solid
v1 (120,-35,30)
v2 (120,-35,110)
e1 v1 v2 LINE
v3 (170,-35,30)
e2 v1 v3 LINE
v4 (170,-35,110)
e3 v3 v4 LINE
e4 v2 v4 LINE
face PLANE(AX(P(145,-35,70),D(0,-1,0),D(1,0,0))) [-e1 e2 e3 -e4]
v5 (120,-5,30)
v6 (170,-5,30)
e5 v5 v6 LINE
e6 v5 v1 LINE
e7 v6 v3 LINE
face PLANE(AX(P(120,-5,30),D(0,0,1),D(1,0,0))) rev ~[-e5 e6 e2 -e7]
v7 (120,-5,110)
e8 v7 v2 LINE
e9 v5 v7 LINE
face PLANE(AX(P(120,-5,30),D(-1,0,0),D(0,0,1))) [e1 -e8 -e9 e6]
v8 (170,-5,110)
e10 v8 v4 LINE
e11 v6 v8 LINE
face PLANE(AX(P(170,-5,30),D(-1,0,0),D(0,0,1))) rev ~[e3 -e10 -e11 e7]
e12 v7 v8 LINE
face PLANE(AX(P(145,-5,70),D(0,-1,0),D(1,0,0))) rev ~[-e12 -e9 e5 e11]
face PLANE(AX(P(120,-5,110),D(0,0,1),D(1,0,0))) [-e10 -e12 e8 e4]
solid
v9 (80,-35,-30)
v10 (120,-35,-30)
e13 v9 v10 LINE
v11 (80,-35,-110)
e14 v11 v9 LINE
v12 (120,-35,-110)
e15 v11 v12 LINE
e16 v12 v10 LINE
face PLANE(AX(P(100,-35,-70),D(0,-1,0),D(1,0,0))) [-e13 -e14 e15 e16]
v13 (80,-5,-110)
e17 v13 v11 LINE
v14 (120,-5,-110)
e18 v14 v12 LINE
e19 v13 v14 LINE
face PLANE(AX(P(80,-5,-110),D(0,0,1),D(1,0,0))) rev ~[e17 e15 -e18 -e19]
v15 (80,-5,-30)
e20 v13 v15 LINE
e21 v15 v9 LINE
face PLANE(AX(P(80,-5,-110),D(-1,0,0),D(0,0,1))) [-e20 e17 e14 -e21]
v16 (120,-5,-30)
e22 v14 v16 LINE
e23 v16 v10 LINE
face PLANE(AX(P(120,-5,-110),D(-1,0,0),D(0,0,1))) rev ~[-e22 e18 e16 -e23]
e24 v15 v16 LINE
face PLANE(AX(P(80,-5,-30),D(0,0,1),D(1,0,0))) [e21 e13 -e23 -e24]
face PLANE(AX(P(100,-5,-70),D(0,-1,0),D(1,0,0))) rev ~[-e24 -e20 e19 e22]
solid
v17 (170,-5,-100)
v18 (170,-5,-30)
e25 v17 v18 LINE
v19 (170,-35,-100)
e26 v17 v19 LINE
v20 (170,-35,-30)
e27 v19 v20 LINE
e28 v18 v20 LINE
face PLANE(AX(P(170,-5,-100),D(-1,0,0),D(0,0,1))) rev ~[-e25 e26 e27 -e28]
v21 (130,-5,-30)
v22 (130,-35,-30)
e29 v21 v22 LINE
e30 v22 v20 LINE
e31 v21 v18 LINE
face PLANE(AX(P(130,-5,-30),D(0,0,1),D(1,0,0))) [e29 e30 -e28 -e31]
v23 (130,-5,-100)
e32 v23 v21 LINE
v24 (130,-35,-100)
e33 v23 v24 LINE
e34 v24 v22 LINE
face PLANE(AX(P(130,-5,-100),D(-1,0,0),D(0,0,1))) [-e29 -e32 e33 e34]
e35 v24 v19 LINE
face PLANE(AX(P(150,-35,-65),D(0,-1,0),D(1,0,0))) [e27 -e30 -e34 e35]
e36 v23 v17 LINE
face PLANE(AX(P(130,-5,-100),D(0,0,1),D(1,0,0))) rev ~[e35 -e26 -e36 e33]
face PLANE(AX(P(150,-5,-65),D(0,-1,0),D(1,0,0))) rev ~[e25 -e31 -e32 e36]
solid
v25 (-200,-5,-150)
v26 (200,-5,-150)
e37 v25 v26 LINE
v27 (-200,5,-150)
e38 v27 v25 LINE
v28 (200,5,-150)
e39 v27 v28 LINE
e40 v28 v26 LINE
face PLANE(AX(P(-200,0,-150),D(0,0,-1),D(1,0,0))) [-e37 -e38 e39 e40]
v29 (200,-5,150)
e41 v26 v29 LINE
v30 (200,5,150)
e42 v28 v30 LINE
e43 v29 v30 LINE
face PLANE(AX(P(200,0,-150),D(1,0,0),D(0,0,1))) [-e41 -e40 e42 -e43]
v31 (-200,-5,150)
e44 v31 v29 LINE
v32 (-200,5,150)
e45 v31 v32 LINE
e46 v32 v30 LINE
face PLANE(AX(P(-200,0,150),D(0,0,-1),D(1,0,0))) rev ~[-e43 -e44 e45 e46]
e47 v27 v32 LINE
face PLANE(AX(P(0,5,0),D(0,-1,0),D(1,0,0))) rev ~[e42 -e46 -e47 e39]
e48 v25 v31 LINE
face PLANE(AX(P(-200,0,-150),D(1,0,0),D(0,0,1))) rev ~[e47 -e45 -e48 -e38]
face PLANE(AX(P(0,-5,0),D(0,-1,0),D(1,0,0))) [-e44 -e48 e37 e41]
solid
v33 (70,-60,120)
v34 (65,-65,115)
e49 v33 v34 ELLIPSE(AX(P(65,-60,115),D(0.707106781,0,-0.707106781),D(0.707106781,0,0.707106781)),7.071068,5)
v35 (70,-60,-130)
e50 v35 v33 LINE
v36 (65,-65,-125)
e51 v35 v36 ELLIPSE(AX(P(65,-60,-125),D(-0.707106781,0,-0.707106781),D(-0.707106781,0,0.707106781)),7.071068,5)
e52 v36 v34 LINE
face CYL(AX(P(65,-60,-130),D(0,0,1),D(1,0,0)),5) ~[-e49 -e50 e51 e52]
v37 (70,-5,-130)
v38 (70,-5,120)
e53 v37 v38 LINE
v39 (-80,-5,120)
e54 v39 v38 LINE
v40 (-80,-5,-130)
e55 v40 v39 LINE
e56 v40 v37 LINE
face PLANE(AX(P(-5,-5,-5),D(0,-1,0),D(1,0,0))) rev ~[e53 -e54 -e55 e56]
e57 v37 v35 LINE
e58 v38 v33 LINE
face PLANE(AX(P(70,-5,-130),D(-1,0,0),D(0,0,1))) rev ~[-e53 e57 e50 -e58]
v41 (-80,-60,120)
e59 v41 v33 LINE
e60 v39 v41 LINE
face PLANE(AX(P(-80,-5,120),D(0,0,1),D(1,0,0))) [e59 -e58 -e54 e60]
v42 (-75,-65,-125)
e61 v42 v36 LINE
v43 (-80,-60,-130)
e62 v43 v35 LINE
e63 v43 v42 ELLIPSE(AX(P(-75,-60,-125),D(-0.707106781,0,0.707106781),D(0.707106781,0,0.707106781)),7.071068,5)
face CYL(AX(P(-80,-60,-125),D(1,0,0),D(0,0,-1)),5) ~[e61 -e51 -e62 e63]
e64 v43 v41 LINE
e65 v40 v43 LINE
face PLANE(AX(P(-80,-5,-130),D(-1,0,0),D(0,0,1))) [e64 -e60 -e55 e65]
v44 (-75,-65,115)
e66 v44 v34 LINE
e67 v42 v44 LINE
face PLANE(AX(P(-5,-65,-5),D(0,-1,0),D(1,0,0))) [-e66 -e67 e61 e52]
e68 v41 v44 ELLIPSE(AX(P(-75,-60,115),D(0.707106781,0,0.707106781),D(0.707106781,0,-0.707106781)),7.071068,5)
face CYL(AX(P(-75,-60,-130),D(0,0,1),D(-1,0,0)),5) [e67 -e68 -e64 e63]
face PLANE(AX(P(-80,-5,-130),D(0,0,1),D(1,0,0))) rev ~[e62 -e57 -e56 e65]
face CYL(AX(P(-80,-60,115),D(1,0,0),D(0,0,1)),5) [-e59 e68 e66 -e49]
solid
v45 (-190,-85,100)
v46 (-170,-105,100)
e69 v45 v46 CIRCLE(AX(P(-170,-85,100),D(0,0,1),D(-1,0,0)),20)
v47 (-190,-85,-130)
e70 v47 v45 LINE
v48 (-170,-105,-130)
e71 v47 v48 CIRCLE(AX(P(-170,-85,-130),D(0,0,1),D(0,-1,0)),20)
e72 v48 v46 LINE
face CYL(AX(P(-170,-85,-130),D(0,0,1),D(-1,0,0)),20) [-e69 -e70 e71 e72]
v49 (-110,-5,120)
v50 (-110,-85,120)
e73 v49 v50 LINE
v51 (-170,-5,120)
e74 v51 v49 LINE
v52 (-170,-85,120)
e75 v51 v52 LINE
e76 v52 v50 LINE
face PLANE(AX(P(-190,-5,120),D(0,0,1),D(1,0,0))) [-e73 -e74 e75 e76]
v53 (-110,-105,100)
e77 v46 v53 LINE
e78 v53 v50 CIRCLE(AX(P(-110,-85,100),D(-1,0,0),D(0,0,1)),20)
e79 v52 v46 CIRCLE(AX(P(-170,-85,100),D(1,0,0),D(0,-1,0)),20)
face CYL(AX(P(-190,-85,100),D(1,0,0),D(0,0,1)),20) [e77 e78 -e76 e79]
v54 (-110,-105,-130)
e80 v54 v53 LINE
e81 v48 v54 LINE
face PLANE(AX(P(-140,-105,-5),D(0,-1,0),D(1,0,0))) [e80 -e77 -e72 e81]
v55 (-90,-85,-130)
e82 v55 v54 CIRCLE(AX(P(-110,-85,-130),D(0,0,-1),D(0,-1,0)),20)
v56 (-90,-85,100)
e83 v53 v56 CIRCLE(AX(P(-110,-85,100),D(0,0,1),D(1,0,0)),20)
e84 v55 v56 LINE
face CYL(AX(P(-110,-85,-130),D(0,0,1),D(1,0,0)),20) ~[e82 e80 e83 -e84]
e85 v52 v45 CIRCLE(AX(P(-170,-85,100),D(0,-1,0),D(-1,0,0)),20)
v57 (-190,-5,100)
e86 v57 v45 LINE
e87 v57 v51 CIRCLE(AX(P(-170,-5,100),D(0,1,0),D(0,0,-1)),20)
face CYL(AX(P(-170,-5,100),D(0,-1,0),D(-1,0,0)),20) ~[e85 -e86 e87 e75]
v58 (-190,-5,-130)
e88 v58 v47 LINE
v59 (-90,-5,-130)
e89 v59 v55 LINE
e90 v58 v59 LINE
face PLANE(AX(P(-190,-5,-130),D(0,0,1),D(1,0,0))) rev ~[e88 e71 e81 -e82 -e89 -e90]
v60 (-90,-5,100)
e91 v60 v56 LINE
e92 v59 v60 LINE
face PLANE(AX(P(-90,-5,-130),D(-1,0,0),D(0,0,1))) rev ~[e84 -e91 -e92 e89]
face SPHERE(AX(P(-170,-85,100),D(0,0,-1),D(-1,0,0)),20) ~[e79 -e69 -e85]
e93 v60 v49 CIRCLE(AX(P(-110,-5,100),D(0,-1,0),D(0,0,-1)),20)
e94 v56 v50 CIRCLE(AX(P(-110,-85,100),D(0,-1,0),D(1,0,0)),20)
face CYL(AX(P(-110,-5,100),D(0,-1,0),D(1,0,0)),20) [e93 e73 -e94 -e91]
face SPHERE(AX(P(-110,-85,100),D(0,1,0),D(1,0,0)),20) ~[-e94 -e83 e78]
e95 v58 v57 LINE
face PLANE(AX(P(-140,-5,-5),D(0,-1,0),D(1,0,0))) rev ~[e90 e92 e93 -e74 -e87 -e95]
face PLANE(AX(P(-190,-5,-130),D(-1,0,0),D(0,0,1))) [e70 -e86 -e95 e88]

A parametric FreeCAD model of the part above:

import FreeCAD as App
import Part
import Sketcher

V = App.Vector


def edges_at(feature, points):
    """Names of the edges that pass closest to the given points."""
    edges = feature.Shape.Edges
    near = lambda p: min(range(len(edges)), key=lambda i: edges[i].distToShape(Part.Vertex(*p))[0])
    return sorted({f"Edge{near(p) + 1}" for p in points})

doc = App.newDocument("Part")
params = doc.addObject("Spreadsheet::Sheet", "Params")
for row, (alias, value) in enumerate([
    ("sketch1_width", "400 mm"),
    ("sketch1_height", "300 mm"),
    ("pad1_length", "10 mm"),
    ("sketch2_width", "100 mm"),
    ("sketch2_height", "250 mm"),
    ("pad2_length", "100 mm"),
    ("fillet_radius", "20 mm"),
    ("sketch3_width", "150 mm"),
    ("sketch3_height", "250 mm"),
    ("pad3_length", "60 mm"),
    ("fillet2_radius", "5 mm"),
    ("sketch4_width", "50 mm"),
    ("sketch4_width2", "40 mm"),
    ("sketch4_height", "80 mm"),
    ("sketch4_height2", "70 mm"),
    ("pad4_length", "30 mm"),
], start=1):
    params.set(f"A{row}", alias)
    params.set(f"B{row}", "=" + value)
    params.setAlias(f"B{row}", alias)

body = doc.addObject("PartDesign::Body", "Body")

# Sketch on XZ plane
sketch1 = body.newObject("Sketcher::SketchObject", "Sketch")
sketch1.AttachmentSupport = (doc.getObject("XZ_Plane"), [""])
sketch1.MapMode = "FlatFace"
sketch1.addGeometry([
    Part.LineSegment(V(-200, 150, 0), V(-200, -150, 0)),
    Part.LineSegment(V(-200, -150, 0), V(200, -150, 0)),
    Part.LineSegment(V(200, -150, 0), V(200, 150, 0)),
    Part.LineSegment(V(200, 150, 0), V(-200, 150, 0)),
], False)
sketch1.addConstraint([
    Sketcher.Constraint("Coincident", 0, 2, 1, 1),
    Sketcher.Constraint("Coincident", 1, 2, 2, 1),
    Sketcher.Constraint("Coincident", 2, 2, 3, 1),
    Sketcher.Constraint("Coincident", 3, 2, 0, 1),
    Sketcher.Constraint("Vertical", 0),
    Sketcher.Constraint("Horizontal", 1),
    Sketcher.Constraint("Vertical", 2),
    Sketcher.Constraint("Horizontal", 3),
    Sketcher.Constraint("Symmetric", 0, 2, 2, 2, -1, 1),
    Sketcher.Constraint("DistanceX", 1, 1, 1, 2, 400.0),
    Sketcher.Constraint("DistanceY", 0, 2, 0, 1, 300.0),
])
sketch1.setExpression("Constraints[9]", "Params.sketch1_width")
sketch1.setExpression("Constraints[10]", "Params.sketch1_height")
pad1 = body.newObject("PartDesign::Pad", "Pad")
pad1.Profile = sketch1
pad1.setExpression("Length", "Params.pad1_length")
pad1.Midplane = True
body2 = doc.addObject("PartDesign::Body", "Body001")

# Sketch on XZ plane
sketch2 = body2.newObject("Sketcher::SketchObject", "Sketch001")
sketch2.AttachmentSupport = (doc.getObject("XZ_Plane001"), [""])
sketch2.MapMode = "FlatFace"
sketch2.AttachmentOffset = App.Placement(V(0, 0, 5), App.Rotation())
sketch2.addGeometry([
    Part.LineSegment(V(-190, 120, 0), V(-190, -130, 0)),
    Part.LineSegment(V(-190, -130, 0), V(-90, -130, 0)),
    Part.LineSegment(V(-90, -130, 0), V(-90, 120, 0)),
    Part.LineSegment(V(-90, 120, 0), V(-190, 120, 0)),
], False)
sketch2.addConstraint([
    Sketcher.Constraint("Coincident", 0, 2, 1, 1),
    Sketcher.Constraint("Coincident", 1, 2, 2, 1),
    Sketcher.Constraint("Coincident", 2, 2, 3, 1),
    Sketcher.Constraint("Coincident", 3, 2, 0, 1),
    Sketcher.Constraint("Vertical", 0),
    Sketcher.Constraint("Horizontal", 1),
    Sketcher.Constraint("Vertical", 2),
    Sketcher.Constraint("Horizontal", 3),
    Sketcher.Constraint("DistanceX", 1, 1, 1, 2, 100.0),
    Sketcher.Constraint("DistanceY", 0, 2, 0, 1, 250.0),
    Sketcher.Constraint("DistanceX", 0, 2, -1, 1, 190.0),
    Sketcher.Constraint("DistanceY", 0, 2, -1, 1, 130.0),
])
sketch2.setExpression("Constraints[8]", "Params.sketch2_width")
sketch2.setExpression("Constraints[9]", "Params.sketch2_height")
pad2 = body2.newObject("PartDesign::Pad", "Pad001")
pad2.Profile = sketch2
pad2.setExpression("Length", "Params.pad2_length")
doc.recompute()

fillet = body2.newObject("PartDesign::Fillet", "Fillet")
fillet.Base = (pad2, edges_at(pad2, [
    (-190, -105, -5),
    (-90, -55, 120),
    (-190, -55, 120),
    (-90, -105, -5),
    (-140, -105, 120),
]))
fillet.setExpression("Radius", "Params.fillet_radius")
body3 = doc.addObject("PartDesign::Body", "Body002")

# Sketch on XZ plane
sketch3 = body3.newObject("Sketcher::SketchObject", "Sketch002")
sketch3.AttachmentSupport = (doc.getObject("XZ_Plane002"), [""])
sketch3.MapMode = "FlatFace"
sketch3.AttachmentOffset = App.Placement(V(0, 0, 5), App.Rotation())
sketch3.addGeometry([
    Part.LineSegment(V(-80, 120, 0), V(-80, -130, 0)),
    Part.LineSegment(V(-80, -130, 0), V(70, -130, 0)),
    Part.LineSegment(V(70, -130, 0), V(70, 120, 0)),
    Part.LineSegment(V(70, 120, 0), V(-80, 120, 0)),
], False)
sketch3.addConstraint([
    Sketcher.Constraint("Coincident", 0, 2, 1, 1),
    Sketcher.Constraint("Coincident", 1, 2, 2, 1),
    Sketcher.Constraint("Coincident", 2, 2, 3, 1),
    Sketcher.Constraint("Coincident", 3, 2, 0, 1),
    Sketcher.Constraint("Vertical", 0),
    Sketcher.Constraint("Horizontal", 1),
    Sketcher.Constraint("Vertical", 2),
    Sketcher.Constraint("Horizontal", 3),
    Sketcher.Constraint("DistanceX", 1, 1, 1, 2, 150.0),
    Sketcher.Constraint("DistanceY", 0, 2, 0, 1, 250.0),
    Sketcher.Constraint("DistanceX", 0, 2, -1, 1, 80.0),
    Sketcher.Constraint("DistanceY", 0, 2, -1, 1, 130.0),
])
sketch3.setExpression("Constraints[8]", "Params.sketch3_width")
sketch3.setExpression("Constraints[9]", "Params.sketch3_height")
pad3 = body3.newObject("PartDesign::Pad", "Pad002")
pad3.Profile = sketch3
pad3.setExpression("Length", "Params.pad3_length")
doc.recompute()

fillet2 = body3.newObject("PartDesign::Fillet", "Fillet001")
fillet2.Base = (pad3, edges_at(pad3, [
    (-5, -65, 120),
    (70, -65, -5),
    (-80, -65, -5),
    (-5, -65, -130),
]))
fillet2.setExpression("Radius", "Params.fillet2_radius")
body4 = doc.addObject("PartDesign::Body", "Body003")
body4.AllowCompound = True

# Sketch on XZ plane
sketch4 = body4.newObject("Sketcher::SketchObject", "Sketch003")
sketch4.AttachmentSupport = (doc.getObject("XZ_Plane003"), [""])
sketch4.MapMode = "FlatFace"
sketch4.AttachmentOffset = App.Placement(V(0, 0, 5), App.Rotation())
sketch4.addGeometry([
    Part.LineSegment(V(120, 110, 0), V(120, 30, 0)),  # 0
    Part.LineSegment(V(120, 30, 0), V(170, 30, 0)),  # 1
    Part.LineSegment(V(170, 30, 0), V(170, 110, 0)),  # 2
    Part.LineSegment(V(170, 110, 0), V(120, 110, 0)),  # 3
    Part.LineSegment(V(130, -30, 0), V(130, -100, 0)),  # 4
    Part.LineSegment(V(130, -100, 0), V(170, -100, 0)),  # 5
    Part.LineSegment(V(170, -100, 0), V(170, -30, 0)),  # 6
    Part.LineSegment(V(170, -30, 0), V(130, -30, 0)),  # 7
    Part.LineSegment(V(80, -30, 0), V(80, -110, 0)),  # 8
    Part.LineSegment(V(80, -110, 0), V(120, -110, 0)),  # 9
    Part.LineSegment(V(120, -110, 0), V(120, -30, 0)),  # 10
    Part.LineSegment(V(120, -30, 0), V(80, -30, 0)),  # 11
], False)
sketch4.addConstraint([
    Sketcher.Constraint("Coincident", 0, 2, 1, 1),
    Sketcher.Constraint("Coincident", 1, 2, 2, 1),
    Sketcher.Constraint("Coincident", 2, 2, 3, 1),
    Sketcher.Constraint("Coincident", 3, 2, 0, 1),
    Sketcher.Constraint("Coincident", 4, 2, 5, 1),
    Sketcher.Constraint("Coincident", 5, 2, 6, 1),
    Sketcher.Constraint("Coincident", 6, 2, 7, 1),
    Sketcher.Constraint("Coincident", 7, 2, 4, 1),
    Sketcher.Constraint("Coincident", 8, 2, 9, 1),
    Sketcher.Constraint("Coincident", 9, 2, 10, 1),
    Sketcher.Constraint("Coincident", 10, 2, 11, 1),
    Sketcher.Constraint("Coincident", 11, 2, 8, 1),
    Sketcher.Constraint("Vertical", 0),
    Sketcher.Constraint("Horizontal", 1),
    Sketcher.Constraint("Vertical", 2),
    Sketcher.Constraint("Horizontal", 3),
    Sketcher.Constraint("Vertical", 4),
    Sketcher.Constraint("Horizontal", 5),
    Sketcher.Constraint("Vertical", 6),
    Sketcher.Constraint("Horizontal", 7),
    Sketcher.Constraint("Vertical", 8),
    Sketcher.Constraint("Horizontal", 9),
    Sketcher.Constraint("Vertical", 10),
    Sketcher.Constraint("Horizontal", 11),
    Sketcher.Constraint("Symmetric", 1, 2, 6, 2, -1),
    Sketcher.Constraint("Symmetric", 3, 2, 9, 2, -1),
    Sketcher.Constraint("Horizontal", 7, 2, 10, 2),
    Sketcher.Constraint("Equal", 7, 9),
    Sketcher.Constraint("DistanceX", 1, 1, 1, 2, 50.0),
    Sketcher.Constraint("DistanceX", 5, 1, 5, 2, 40.0),
    Sketcher.Constraint("DistanceY", 0, 2, 0, 1, 80.0),
    Sketcher.Constraint("DistanceY", 4, 2, 4, 1, 70.0),
    Sketcher.Constraint("DistanceX", -1, 1, 0, 2, 120.0),
    Sketcher.Constraint("DistanceY", -1, 1, 0, 2, 30.0),
])
sketch4.setExpression("Constraints[28]", "Params.sketch4_width")
sketch4.setExpression("Constraints[29]", "Params.sketch4_width2")
sketch4.setExpression("Constraints[30]", "Params.sketch4_height")
sketch4.setExpression("Constraints[31]", "Params.sketch4_height2")
pad4 = body4.newObject("PartDesign::Pad", "Pad003")
pad4.Profile = sketch4
pad4.setExpression("Length", "Params.pad4_length")

doc.recompute()
